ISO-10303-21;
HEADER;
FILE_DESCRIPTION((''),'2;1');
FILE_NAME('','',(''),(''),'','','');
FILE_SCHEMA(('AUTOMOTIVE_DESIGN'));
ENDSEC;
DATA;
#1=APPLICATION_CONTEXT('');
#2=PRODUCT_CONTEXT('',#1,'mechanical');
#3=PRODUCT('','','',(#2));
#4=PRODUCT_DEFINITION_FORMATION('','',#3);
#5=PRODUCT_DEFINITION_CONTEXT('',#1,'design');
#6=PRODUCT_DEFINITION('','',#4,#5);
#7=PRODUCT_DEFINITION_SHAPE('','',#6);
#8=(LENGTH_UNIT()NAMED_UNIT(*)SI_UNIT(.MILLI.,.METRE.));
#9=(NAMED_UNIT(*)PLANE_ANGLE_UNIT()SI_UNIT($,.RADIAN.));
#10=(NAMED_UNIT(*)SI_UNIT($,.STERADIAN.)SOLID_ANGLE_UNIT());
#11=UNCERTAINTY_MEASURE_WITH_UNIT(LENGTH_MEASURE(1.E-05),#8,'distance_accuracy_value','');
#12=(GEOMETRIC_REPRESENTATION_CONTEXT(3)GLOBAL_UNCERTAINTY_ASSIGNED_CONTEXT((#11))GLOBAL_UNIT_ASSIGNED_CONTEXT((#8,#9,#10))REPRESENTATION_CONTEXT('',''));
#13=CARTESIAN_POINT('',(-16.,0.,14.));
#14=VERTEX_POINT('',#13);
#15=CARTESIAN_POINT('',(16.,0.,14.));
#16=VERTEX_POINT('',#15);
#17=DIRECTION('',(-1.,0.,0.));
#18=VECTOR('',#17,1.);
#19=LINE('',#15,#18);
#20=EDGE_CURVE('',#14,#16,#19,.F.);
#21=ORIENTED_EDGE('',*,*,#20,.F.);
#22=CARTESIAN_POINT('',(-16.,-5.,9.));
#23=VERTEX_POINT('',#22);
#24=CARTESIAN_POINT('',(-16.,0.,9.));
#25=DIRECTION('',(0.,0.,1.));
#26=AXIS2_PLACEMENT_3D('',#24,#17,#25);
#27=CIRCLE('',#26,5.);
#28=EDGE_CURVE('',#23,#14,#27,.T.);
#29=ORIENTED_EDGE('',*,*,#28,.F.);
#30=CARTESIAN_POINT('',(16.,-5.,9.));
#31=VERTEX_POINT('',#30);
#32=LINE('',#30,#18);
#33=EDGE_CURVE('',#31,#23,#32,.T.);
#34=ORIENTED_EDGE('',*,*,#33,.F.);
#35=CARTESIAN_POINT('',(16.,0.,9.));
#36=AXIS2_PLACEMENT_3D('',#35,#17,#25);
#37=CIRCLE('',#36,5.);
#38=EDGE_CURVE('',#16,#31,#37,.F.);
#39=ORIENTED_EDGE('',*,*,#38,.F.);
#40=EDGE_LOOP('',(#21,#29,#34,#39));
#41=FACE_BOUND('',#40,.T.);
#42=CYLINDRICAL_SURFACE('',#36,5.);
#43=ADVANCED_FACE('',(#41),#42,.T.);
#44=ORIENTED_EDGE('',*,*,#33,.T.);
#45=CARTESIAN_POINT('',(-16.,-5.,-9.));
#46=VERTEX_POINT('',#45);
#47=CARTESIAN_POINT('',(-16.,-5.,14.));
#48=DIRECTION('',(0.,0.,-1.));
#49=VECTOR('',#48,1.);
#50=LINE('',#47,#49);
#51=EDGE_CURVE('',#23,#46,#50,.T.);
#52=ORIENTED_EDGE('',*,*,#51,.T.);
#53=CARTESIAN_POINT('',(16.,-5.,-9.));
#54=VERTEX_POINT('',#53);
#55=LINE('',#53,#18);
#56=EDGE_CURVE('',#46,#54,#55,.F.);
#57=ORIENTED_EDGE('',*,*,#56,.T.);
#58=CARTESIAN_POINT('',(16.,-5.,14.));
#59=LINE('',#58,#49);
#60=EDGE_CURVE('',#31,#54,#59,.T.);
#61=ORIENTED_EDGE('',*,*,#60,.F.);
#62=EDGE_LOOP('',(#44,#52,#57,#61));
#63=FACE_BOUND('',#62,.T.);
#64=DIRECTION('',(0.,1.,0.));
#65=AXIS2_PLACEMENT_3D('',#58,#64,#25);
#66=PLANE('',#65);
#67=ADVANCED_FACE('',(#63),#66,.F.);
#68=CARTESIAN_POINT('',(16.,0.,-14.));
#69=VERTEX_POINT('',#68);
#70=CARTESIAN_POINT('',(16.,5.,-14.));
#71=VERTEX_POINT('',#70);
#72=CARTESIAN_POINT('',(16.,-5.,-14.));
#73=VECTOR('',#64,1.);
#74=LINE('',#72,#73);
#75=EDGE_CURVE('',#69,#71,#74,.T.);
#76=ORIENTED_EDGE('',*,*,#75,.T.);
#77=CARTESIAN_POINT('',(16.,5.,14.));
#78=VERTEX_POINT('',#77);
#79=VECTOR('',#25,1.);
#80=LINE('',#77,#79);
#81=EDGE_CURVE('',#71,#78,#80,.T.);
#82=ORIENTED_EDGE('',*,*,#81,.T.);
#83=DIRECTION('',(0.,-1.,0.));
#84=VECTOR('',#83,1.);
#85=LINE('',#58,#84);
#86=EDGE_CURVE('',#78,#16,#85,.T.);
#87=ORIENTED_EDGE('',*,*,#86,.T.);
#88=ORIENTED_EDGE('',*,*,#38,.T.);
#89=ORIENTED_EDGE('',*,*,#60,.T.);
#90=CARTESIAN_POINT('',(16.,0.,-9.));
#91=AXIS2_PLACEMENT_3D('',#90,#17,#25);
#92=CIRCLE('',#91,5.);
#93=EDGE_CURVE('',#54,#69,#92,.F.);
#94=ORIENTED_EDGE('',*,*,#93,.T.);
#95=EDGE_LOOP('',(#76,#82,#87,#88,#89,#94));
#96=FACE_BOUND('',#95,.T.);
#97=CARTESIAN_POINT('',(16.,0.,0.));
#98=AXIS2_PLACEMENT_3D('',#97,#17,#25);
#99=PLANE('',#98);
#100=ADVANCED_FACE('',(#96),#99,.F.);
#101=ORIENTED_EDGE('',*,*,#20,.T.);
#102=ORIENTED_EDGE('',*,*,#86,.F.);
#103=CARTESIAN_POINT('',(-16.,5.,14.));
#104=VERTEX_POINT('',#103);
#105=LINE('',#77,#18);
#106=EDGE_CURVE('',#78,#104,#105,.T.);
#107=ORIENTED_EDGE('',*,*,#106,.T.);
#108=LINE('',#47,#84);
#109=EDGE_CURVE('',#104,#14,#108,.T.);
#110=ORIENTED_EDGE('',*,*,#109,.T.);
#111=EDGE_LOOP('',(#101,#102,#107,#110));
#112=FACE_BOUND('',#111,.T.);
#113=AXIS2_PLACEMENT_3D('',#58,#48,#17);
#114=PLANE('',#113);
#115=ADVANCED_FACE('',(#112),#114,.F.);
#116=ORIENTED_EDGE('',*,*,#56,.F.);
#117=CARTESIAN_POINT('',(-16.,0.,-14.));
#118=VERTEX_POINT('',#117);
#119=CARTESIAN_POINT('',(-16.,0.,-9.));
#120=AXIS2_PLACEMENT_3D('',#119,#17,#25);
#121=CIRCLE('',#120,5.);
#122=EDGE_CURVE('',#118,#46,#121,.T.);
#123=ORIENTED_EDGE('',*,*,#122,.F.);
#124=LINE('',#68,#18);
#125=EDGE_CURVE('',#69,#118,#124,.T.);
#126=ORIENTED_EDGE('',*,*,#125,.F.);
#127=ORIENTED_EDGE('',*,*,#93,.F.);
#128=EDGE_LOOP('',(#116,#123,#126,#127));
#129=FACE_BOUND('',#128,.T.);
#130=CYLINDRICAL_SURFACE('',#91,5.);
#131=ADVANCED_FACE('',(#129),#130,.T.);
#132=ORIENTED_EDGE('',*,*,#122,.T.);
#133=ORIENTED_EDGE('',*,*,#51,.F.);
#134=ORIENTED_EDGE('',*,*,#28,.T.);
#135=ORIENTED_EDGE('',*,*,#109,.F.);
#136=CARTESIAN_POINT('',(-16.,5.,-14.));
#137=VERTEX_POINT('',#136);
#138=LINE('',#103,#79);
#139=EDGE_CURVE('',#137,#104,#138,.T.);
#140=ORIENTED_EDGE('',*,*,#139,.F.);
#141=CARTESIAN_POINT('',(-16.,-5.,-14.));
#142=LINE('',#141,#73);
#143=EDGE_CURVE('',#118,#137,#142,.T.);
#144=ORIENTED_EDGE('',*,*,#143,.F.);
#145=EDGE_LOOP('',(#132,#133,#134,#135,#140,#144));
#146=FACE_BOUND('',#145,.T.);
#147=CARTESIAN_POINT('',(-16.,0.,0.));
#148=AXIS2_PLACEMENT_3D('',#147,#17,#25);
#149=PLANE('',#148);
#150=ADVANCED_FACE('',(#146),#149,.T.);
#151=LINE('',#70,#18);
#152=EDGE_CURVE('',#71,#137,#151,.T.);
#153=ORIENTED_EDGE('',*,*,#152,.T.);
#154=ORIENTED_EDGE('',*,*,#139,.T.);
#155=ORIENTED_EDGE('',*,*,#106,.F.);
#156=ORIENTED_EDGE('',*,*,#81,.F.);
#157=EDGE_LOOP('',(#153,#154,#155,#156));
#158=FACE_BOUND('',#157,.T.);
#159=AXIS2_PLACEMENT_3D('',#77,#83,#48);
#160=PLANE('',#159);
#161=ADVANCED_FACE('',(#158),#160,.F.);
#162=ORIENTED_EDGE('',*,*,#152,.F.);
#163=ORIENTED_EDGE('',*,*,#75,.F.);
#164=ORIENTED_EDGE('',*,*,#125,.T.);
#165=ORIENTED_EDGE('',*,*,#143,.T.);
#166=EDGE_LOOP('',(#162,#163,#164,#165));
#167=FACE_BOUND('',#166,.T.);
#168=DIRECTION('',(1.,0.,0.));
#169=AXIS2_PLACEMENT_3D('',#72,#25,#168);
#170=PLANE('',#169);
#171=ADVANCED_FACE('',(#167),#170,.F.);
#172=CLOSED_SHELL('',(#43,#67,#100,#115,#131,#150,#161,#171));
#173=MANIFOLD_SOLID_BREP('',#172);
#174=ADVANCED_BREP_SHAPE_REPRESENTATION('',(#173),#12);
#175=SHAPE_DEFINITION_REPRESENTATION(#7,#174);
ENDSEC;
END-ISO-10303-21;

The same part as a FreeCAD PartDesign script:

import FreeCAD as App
import Part
import Sketcher
Q = App.Units.Quantity


def edges_at(feature, points):
    """Names of the edges that pass closest to the given points."""
    edges = feature.Shape.Edges
    near = lambda p: min(range(len(edges)), key=lambda i: edges[i].distToShape(Part.Vertex(*p))[0])
    return sorted({f"Edge{near(p) + 1}" for p in points})

doc = App.newDocument("Part")
params = doc.addObject("Spreadsheet::Sheet", "Params")
for row, (alias, value) in enumerate([
    ("sketch1_width", "10 mm"),
    ("sketch1_height", "28 mm"),
    ("pad1_length", "32 mm"),
    ("fillet_radius", "5 mm"),
], start=1):
    params.set(f"A{row}", alias)
    params.set(f"B{row}", "=" + value)
    params.setAlias(f"B{row}", alias)

body = doc.addObject("PartDesign::Body", "Body")

sketch1 = body.newObject("Sketcher::SketchObject", "Sketch")
sketch1.AttachmentSupport = (doc.getObject("YZ_Plane"), [""])
sketch1.MapMode = "FlatFace"
sketch1.addGeometry(Part.LineSegment(App.Vector(5, 14, 0), App.Vector(-5, 14, 0)), False)
sketch1.addGeometry(Part.LineSegment(App.Vector(-5, 14, 0), App.Vector(-5, -14, 0)), False)
sketch1.addGeometry(Part.LineSegment(App.Vector(-5, -14, 0), App.Vector(5, -14, 0)), False)
sketch1.addGeometry(Part.LineSegment(App.Vector(5, -14, 0), App.Vector(5, 14, 0)), False)
sketch1.addConstraint(Sketcher.Constraint("Coincident", 0, 2, 1, 1))
sketch1.addConstraint(Sketcher.Constraint("Coincident", 1, 2, 2, 1))
sketch1.addConstraint(Sketcher.Constraint("Coincident", 2, 2, 3, 1))
sketch1.addConstraint(Sketcher.Constraint("Coincident", 3, 2, 0, 1))
sketch1.addConstraint(Sketcher.Constraint("Horizontal", 0))
sketch1.addConstraint(Sketcher.Constraint("Vertical", 1))
sketch1.addConstraint(Sketcher.Constraint("Horizontal", 2))
sketch1.addConstraint(Sketcher.Constraint("Vertical", 3))
sketch1.addConstraint(Sketcher.Constraint("Symmetric", 0, 2, 2, 2, -1, 1))
sketch1.addConstraint(Sketcher.Constraint("DistanceX", 0, 2, 0, 1, Q("10 mm")))
sketch1.addConstraint(Sketcher.Constraint("DistanceY", 1, 2, 1, 1, Q("28 mm")))
sketch1.setExpression("Constraints[9]", "Params.sketch1_width")
sketch1.setExpression("Constraints[10]", "Params.sketch1_height")
pad1 = body.newObject("PartDesign::Pad", "Pad")
pad1.Profile = sketch1
pad1.setExpression("Length", "Params.pad1_length")
pad1.Midplane = True
doc.recompute()

fillet = body.newObject("PartDesign::Fillet", "Fillet")
fillet.Base = (pad1, edges_at(pad1, [(0, -5, -14), (0, -5, 14)]))
fillet.setExpression("Radius", "Params.fillet_radius")

doc.recompute()
